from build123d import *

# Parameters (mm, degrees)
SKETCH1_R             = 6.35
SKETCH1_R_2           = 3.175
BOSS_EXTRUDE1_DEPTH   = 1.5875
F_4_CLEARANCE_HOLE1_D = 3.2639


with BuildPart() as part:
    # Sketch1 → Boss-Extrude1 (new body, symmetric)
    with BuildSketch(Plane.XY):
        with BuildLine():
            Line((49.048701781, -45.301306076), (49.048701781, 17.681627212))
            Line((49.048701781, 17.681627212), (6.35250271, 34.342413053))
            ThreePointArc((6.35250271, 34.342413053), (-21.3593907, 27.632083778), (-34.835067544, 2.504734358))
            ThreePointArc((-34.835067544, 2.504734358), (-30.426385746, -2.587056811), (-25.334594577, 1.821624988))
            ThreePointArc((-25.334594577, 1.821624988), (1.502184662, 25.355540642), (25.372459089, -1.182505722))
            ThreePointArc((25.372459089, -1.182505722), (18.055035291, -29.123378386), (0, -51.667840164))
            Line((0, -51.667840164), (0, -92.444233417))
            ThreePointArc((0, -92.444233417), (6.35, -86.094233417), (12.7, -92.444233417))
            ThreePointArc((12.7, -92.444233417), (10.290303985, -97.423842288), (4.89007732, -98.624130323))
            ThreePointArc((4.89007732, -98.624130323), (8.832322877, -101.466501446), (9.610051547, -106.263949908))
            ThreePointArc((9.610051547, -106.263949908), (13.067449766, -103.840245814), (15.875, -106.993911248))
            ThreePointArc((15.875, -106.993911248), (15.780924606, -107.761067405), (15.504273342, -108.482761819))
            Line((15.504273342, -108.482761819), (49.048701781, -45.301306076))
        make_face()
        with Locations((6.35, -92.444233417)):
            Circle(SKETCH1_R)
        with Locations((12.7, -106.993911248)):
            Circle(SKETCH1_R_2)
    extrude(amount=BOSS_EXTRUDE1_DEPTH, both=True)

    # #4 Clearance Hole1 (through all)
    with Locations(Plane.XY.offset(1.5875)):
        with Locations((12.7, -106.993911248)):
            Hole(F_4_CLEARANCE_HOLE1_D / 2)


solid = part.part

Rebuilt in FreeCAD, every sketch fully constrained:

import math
import FreeCAD as App
import Part
import Sketcher
from FreeCAD import Vector
Q = App.Units.Quantity

doc = App.newDocument("Part")
params = doc.addObject("Spreadsheet::Sheet", "Params")
for row, (alias, value) in enumerate([
    ("sketch1_radius", "1 in"),
    ("sketch1_radius2", "0.25 in"),
    ("sketch1_radius3", "1.375 in"),
    ("sketch1_radius4", "0.125 in"),
    ("pad1_length", "0.125 in"),
    ("hole_diameter", "0.1285 in"),
], start=1):
    params.set(f"A{row}", alias)
    params.set(f"B{row}", "=" + value)
    params.setAlias(f"B{row}", alias)

body = doc.addObject("PartDesign::Body", "Body")

# Sketch on XY plane
sketch1 = doc.addObject("Sketcher::SketchObject", "Sketch")
body.addObject(sketch1)
sketch1.AttachmentSupport = (doc.XY_Plane, [""])
sketch1.MapMode = "FlatFace"
sketch1.addGeometry([
    Part.LineSegment(Vector(49, -45.3, 0), Vector(49, 17.7, 0)),  # 0
    Part.LineSegment(Vector(49, 17.7, 0), Vector(6.4, 34.3, 0)),  # 1
    Part.ArcOfCircle(Part.Circle(Vector(0, 0, 0), Vector(0, 0, 1), 34.9), math.radians(80), math.radians(176)),  # 2
    Part.ArcOfCircle(Part.Circle(Vector(-30.1, 2.2, 0), Vector(0, 0, 1), 4.8), math.radians(176), math.radians(356)),  # 3
    Part.ArcOfCircle(Part.Circle(Vector(0, 0, 0), Vector(0, 0, 1), 25.4), math.radians(-3), math.radians(176)),  # 4
    Part.ArcOfCircle(Part.Circle(Vector(-44, 2, 0), Vector(0, 0, 1), 69.4), math.radians(-51), math.radians(-3)),  # 5
    Part.LineSegment(Vector(0, -51.7, 0), Vector(0, -92.4, 0)),  # 6
    Part.ArcOfCircle(Part.Circle(Vector(6.3, -92.4, 0), Vector(0, 0, 1), 6.3), math.radians(180), math.radians(257)),  # 7
    Part.ArcOfCircle(Part.Circle(Vector(3.4, -104.8, 0), Vector(0, 0, 1), 6.3), math.radians(-13), math.radians(77)),  # 8
    Part.ArcOfCircle(Part.Circle(Vector(12.7, -107, 0), Vector(0, 0, 1), 3.2), math.radians(167), math.radians(332)),  # 9
    Part.LineSegment(Vector(15.5, -108.5, 0), Vector(49, -45.3, 0)),  # 10
], False)
sketch1.addConstraint([
    Sketcher.Constraint("Coincident", 0, 2, 1, 1),
    Sketcher.Constraint("Coincident", 1, 2, 2, 1),
    Sketcher.Constraint("Tangent", 2, 2, 3, 1),
    Sketcher.Constraint("Tangent", 3, 2, 4, 2),
    Sketcher.Constraint("Tangent", 4, 1, 5, 2),
    Sketcher.Constraint("Coincident", 5, 1, 6, 1),
    Sketcher.Constraint("Tangent", 6, 2, 7, 1),
    Sketcher.Constraint("Tangent", 7, 2, 8, 2),
    Sketcher.Constraint("Tangent", 8, 1, 9, 1),
    Sketcher.Constraint("Tangent", 9, 2, 10, 1),
    Sketcher.Constraint("Coincident", 10, 2, 0, 1),
    Sketcher.Constraint("Vertical", 0),
    Sketcher.Constraint("Vertical", 6),
    Sketcher.Constraint("Coincident", 2, 3, -1, 1),
    Sketcher.Constraint("Coincident", 4, 3, -1, 1),
    Sketcher.Constraint("Equal", 7, 8),
    Sketcher.Constraint("PointOnObject", 5, 1, -2),
    Sketcher.Constraint("Radius", 4, Q("1 in")),
    Sketcher.Constraint("Radius", 7, Q("0.25 in")),
    Sketcher.Constraint("Radius", 2, Q("1.375 in")),
    Sketcher.Constraint("Radius", 9, Q("0.125 in")),
    Sketcher.Constraint("DistanceX", -1, 1, 9, 3, Q("0.5 in")),
    Sketcher.Constraint("Radius", 5, 69.419182),
    Sketcher.Constraint("DistanceX", 5, 3, 2, 2, Q("0.3597002 in")),
    Sketcher.Constraint("DistanceX", -1, 1, 0, 2, 49.048702),
    Sketcher.Constraint("DistanceY", 5, 3, 0, 2, 15.632299),
    Sketcher.Constraint("DistanceX", 1, 2, 0, 2, 42.696199),
    Sketcher.Constraint("DistanceY", 10, 2, 4, 1, 44.1188),
    Sketcher.Constraint("DistanceY", 0, 1, 0, 2, 62.982933),
    Sketcher.Constraint("DistanceY", 6, 2, 6, 1, 40.776393),
    Sketcher.Constraint("DistanceY", 9, 3, -1, 1, 106.993911),
])
sketch1.setExpression("Constraints[17]", "Params.sketch1_radius")
sketch1.setExpression("Constraints[18]", "Params.sketch1_radius2")
sketch1.setExpression("Constraints[19]", "Params.sketch1_radius3")
sketch1.setExpression("Constraints[20]", "Params.sketch1_radius4")
pad1 = doc.addObject("PartDesign::Pad", "Pad")
body.addObject(pad1)
pad1.Profile = sketch1
pad1.setExpression("Length", "Params.pad1_length")
pad1.Midplane = True

# Sketch on XY plane
sketch2 = doc.addObject("Sketcher::SketchObject", "Sketch001")
body.addObject(sketch2)
sketch2.AttachmentSupport = (doc.XY_Plane, [""])
sketch2.MapMode = "FlatFace"
sketch2.AttachmentOffset = App.Placement(Vector(0, 0, 0.0625 * 25.4), App.Rotation())
sketch2.addGeometry(Part.Circle(Vector(12.7, -107, 0), Vector(0, 0, 1), 1.6), False)
sketch2.addConstraint([
    Sketcher.Constraint("Diameter", 0, Q("0.1285 in")),
    Sketcher.Constraint("DistanceX", -1, 1, 0, 3, Q("0.5 in")),
    Sketcher.Constraint("DistanceY", 0, 3, -1, 1, 106.993911),
])
doc.recompute()
hole = doc.addObject("PartDesign::Hole", "Hole")
body.addObject(hole)
hole.Profile = sketch2
hole.ThreadType = "None"
hole.setExpression("Diameter", "Params.hole_diameter")
hole.DepthType = "ThroughAll"

doc.recompute()
